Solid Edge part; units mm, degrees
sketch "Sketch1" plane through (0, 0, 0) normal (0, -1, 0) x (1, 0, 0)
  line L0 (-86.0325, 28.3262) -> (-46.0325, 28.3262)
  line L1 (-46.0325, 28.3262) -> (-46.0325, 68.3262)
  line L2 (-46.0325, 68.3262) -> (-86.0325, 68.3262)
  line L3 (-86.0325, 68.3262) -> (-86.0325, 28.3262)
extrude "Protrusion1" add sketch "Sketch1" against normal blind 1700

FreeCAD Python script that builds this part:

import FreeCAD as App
import Part
import Sketcher
Q = App.Units.Quantity


def add_polygon(sketch, points):
    """Adds a closed chain of lines whose ends are joined by coincident constraints."""
    first, n = sketch.GeometryCount, len(points)
    for a, b in zip(points, points[1:] + points[:1]):
        sketch.addGeometry(Part.LineSegment(App.Vector(*a, 0), App.Vector(*b, 0)), False)
    for i in range(n):
        sketch.addConstraint(Sketcher.Constraint("Coincident", first + i, 2, first + (i + 1) % n, 1))

doc = App.newDocument("Part")
params = doc.addObject("Spreadsheet::Sheet", "Params")
for row, (alias, value) in enumerate([
    ("sketch1_width", "40 mm"),
    ("pad1_length", "1700 mm"),
], start=1):
    params.set(f"A{row}", alias)
    params.set(f"B{row}", "=" + value)
    params.setAlias(f"B{row}", alias)

body = doc.addObject("PartDesign::Body", "Body")

# Sketch on XZ plane
sketch1 = doc.addObject("Sketcher::SketchObject", "Sketch")
body.addObject(sketch1)
sketch1.AttachmentSupport = (doc.XZ_Plane, [""])
sketch1.MapMode = "FlatFace"
add_polygon(sketch1, [(-86, 68), (-86, 28), (-46, 28), (-46, 68)])  # lines 0-3
sketch1.addConstraint([
    Sketcher.Constraint("Vertical", 0),
    Sketcher.Constraint("Horizontal", 1),
    Sketcher.Constraint("Vertical", 2),
    Sketcher.Constraint("Horizontal", 3),
    Sketcher.Constraint("Equal", 3, 0),
    Sketcher.Constraint("DistanceX", 1, 1, 1, 2, Q("40 mm")),
    Sketcher.Constraint("DistanceX", 0, 2, -1, 1, Q("86.0325 mm")),
    Sketcher.Constraint("DistanceY", -1, 1, 0, 2, Q("28.3262 mm")),
])
sketch1.setExpression("Constraints[9]", "Params.sketch1_width")
pad1 = doc.addObject("PartDesign::Pad", "Pad")
body.addObject(pad1)
pad1.Profile = sketch1
pad1.setExpression("Length", "Params.pad1_length")
pad1.Reversed = True

doc.recompute()
